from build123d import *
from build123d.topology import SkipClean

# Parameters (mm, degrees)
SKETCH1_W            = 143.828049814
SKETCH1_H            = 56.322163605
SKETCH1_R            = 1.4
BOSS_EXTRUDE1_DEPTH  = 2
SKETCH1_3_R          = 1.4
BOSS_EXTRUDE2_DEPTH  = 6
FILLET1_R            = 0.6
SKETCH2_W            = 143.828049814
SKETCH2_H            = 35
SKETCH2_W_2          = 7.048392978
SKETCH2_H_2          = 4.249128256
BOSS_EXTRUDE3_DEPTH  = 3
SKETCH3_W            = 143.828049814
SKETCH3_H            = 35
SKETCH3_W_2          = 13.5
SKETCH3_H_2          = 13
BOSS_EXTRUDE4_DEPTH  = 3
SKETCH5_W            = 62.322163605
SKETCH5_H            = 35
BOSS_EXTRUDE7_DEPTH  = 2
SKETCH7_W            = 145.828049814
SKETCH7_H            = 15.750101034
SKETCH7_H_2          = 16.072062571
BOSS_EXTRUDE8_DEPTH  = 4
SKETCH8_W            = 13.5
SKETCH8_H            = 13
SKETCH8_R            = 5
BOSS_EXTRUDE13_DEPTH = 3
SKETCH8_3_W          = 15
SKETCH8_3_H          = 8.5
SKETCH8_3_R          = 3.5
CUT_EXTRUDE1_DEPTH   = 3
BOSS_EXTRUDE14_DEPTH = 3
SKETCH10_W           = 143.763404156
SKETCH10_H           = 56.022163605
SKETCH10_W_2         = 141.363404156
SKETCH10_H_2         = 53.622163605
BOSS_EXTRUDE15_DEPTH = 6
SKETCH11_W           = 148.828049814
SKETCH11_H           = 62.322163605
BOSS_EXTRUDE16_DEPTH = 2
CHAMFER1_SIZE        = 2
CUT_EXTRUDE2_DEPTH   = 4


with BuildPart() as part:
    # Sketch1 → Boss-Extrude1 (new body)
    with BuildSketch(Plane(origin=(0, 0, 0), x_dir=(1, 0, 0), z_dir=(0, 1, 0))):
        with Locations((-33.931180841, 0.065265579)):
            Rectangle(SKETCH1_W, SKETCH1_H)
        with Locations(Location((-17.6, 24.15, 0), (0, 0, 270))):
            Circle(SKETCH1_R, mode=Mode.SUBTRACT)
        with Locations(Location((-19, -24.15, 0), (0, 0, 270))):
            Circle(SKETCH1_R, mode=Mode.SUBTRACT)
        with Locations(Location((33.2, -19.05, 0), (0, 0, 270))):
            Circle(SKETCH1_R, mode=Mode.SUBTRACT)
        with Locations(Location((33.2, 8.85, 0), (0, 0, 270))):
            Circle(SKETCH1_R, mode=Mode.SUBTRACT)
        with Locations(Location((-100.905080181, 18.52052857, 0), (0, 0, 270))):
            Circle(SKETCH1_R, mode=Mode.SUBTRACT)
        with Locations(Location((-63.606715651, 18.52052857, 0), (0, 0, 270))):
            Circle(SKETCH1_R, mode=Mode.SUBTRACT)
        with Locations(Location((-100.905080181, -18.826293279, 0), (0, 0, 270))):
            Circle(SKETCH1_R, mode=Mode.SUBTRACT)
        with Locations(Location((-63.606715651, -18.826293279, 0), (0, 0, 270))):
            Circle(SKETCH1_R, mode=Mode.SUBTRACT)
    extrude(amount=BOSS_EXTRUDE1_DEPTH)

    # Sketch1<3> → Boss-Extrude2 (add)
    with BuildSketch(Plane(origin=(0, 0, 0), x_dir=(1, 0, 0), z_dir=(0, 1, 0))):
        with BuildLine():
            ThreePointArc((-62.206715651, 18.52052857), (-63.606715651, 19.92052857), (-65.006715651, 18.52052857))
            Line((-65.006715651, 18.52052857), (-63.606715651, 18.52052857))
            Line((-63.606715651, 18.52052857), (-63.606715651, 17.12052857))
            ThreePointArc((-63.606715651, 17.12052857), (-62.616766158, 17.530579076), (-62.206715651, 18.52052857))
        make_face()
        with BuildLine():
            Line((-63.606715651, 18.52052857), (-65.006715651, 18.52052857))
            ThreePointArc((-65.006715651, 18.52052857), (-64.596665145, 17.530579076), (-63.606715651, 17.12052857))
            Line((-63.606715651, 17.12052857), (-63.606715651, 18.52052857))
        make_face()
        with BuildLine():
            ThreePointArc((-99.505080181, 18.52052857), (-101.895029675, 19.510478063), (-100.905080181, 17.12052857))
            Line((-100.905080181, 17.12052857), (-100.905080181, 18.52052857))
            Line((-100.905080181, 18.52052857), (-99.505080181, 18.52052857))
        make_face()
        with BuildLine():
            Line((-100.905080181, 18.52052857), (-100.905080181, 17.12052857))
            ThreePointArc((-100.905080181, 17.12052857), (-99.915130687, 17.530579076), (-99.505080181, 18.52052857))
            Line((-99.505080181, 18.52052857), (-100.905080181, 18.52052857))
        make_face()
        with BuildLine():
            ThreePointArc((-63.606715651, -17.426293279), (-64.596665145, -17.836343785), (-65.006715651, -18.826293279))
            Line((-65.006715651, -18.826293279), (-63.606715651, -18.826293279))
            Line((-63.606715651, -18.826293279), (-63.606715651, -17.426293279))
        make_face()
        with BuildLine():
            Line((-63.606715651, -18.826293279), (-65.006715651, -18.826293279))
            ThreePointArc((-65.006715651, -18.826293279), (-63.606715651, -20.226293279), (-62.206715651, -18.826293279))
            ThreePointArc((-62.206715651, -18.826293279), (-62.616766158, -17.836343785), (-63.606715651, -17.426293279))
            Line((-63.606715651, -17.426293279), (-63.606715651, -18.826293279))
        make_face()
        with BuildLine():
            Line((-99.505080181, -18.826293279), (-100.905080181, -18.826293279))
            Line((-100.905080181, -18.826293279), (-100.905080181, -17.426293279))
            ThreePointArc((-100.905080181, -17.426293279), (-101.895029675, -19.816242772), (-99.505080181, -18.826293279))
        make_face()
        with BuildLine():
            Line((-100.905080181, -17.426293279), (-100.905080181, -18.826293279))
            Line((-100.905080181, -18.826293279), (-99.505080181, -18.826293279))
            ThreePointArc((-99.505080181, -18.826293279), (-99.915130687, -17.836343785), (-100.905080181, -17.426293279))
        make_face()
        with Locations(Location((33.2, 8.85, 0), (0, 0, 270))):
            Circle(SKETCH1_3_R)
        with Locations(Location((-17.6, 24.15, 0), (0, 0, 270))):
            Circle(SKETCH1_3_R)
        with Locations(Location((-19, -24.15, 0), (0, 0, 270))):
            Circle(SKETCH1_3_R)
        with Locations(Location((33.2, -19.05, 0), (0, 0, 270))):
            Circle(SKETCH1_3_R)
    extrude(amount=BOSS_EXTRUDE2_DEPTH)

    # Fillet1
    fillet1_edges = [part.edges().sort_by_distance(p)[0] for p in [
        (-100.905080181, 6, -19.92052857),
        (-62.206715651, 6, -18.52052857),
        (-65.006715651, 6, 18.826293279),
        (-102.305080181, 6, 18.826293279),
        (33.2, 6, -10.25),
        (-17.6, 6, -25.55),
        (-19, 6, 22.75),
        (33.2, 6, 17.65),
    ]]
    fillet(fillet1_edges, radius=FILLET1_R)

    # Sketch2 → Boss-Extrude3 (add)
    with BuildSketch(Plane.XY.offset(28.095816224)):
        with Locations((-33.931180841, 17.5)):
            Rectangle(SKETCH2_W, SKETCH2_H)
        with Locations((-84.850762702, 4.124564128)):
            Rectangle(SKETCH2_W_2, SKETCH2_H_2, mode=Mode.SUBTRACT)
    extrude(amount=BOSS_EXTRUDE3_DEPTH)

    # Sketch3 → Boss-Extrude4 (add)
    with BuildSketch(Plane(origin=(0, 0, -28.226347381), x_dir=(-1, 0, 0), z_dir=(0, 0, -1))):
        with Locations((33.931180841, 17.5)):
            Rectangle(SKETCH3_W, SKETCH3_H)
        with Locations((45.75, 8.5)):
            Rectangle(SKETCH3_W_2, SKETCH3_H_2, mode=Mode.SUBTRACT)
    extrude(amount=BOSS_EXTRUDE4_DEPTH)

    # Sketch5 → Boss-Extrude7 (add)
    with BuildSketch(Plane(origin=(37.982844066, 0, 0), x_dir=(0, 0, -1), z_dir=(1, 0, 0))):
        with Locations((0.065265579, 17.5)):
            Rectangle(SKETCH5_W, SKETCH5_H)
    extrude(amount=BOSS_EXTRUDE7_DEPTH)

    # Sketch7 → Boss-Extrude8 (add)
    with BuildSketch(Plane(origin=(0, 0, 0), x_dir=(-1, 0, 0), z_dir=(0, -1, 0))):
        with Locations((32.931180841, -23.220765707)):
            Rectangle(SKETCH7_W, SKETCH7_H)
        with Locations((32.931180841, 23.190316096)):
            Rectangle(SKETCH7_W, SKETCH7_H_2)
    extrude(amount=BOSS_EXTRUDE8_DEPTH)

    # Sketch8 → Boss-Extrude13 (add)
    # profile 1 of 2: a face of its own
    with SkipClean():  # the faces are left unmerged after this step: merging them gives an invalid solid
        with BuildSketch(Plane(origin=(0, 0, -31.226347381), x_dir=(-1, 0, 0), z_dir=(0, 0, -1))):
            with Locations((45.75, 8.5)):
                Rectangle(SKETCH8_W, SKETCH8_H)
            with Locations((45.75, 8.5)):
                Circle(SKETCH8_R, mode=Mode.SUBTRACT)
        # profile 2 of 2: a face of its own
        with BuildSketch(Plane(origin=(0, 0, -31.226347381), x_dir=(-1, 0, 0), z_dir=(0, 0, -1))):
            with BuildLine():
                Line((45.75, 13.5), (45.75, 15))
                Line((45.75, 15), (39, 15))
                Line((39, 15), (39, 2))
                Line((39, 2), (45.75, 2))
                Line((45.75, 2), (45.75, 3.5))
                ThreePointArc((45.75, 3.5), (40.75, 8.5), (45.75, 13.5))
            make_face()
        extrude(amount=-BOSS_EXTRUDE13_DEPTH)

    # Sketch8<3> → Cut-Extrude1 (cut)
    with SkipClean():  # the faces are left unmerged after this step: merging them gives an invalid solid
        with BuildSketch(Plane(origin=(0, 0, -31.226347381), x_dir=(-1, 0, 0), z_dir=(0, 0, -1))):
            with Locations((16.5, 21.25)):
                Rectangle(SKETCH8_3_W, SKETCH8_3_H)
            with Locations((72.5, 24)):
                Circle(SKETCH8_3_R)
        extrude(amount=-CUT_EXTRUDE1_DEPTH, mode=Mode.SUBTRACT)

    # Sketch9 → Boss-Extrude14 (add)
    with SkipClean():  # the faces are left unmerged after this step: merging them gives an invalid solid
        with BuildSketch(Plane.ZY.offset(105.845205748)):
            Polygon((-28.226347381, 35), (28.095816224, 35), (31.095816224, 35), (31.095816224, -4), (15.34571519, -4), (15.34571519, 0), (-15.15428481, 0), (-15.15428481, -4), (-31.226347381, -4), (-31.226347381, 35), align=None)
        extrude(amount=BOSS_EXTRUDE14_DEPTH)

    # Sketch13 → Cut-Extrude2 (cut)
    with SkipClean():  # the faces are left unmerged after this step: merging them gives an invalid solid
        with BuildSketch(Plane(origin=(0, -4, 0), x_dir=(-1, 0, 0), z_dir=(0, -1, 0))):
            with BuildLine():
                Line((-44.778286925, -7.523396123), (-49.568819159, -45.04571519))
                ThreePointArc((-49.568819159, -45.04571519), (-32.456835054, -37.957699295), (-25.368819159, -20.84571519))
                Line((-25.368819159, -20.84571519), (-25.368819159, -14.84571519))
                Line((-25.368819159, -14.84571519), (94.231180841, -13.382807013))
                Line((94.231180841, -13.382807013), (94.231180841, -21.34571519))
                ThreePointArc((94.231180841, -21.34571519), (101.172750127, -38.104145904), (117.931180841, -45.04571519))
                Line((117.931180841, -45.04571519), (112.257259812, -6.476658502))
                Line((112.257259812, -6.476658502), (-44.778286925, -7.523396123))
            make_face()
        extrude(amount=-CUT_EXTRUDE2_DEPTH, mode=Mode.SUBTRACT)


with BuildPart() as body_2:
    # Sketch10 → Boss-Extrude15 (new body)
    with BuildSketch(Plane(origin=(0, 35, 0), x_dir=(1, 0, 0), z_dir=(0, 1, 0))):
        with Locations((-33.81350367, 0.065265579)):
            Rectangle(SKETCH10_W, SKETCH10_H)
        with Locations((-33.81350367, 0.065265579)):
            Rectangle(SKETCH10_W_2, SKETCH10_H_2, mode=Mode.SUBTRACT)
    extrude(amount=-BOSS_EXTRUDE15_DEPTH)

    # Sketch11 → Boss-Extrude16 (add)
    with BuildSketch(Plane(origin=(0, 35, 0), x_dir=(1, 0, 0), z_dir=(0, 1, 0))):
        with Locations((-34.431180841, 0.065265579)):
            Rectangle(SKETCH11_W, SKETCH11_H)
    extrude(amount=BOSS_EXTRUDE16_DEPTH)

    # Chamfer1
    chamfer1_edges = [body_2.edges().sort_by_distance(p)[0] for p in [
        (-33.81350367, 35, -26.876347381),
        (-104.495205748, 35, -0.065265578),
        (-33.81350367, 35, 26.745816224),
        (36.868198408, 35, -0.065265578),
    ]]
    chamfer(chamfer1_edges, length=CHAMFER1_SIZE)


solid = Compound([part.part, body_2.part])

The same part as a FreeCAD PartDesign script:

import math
import FreeCAD as App
import Part
import Sketcher

V = App.Vector
Q = App.Units.Quantity


def edges_at(feature, points):
    """Names of the edges that pass closest to the given points."""
    edges = feature.Shape.Edges
    near = lambda p: min(range(len(edges)), key=lambda i: edges[i].distToShape(Part.Vertex(*p))[0])
    return sorted({f"Edge{near(p) + 1}" for p in points})

doc = App.newDocument("Part")
body = doc.addObject("PartDesign::Body", "Body")

sketch1 = doc.addObject("Sketcher::SketchObject", "Sketch")
body.addObject(sketch1)
sketch1.AttachmentSupport = (doc.XZ_Plane, [""])
sketch1.MapMode = "FlatFace"
sketch1.addGeometry(Part.LineSegment(V(-105.8, -28.2, 0), V(-105.8, 28.1, 0)), False)
sketch1.addGeometry(Part.LineSegment(V(-105.8, 28.1, 0), V(38, 28.1, 0)), False)
sketch1.addGeometry(Part.LineSegment(V(38, 28.1, 0), V(38, -28.2, 0)), False)
sketch1.addGeometry(Part.LineSegment(V(38, -28.2, 0), V(-105.8, -28.2, 0)), False)
sketch1.addGeometry(Part.Circle(V(-100.9, 18.8, 0), V(0, 0, 1), 1.4), False)
sketch1.addGeometry(Part.Circle(V(-63.6, 18.8, 0), V(0, 0, 1), 1.4), False)
sketch1.addGeometry(Part.Circle(V(-19, 24.1, 0), V(0, 0, 1), 1.4), False)
sketch1.addGeometry(Part.Circle(V(33.2, 19.1, 0), V(0, 0, 1), 1.4), False)
sketch1.addGeometry(Part.Circle(V(-100.9, -18.5, 0), V(0, 0, 1), 1.4), False)
sketch1.addGeometry(Part.Circle(V(-63.6, -18.5, 0), V(0, 0, 1), 1.4), False)
sketch1.addGeometry(Part.Circle(V(33.2, -8.8, 0), V(0, 0, 1), 1.4), False)
sketch1.addGeometry(Part.Circle(V(-17.6, -24.1, 0), V(0, 0, 1), 1.4), False)
sketch1.addConstraint(Sketcher.Constraint("Coincident", 0, 2, 1, 1))
sketch1.addConstraint(Sketcher.Constraint("Coincident", 1, 2, 2, 1))
sketch1.addConstraint(Sketcher.Constraint("Coincident", 2, 2, 3, 1))
sketch1.addConstraint(Sketcher.Constraint("Coincident", 3, 2, 0, 1))
sketch1.addConstraint(Sketcher.Constraint("Vertical", 0))
sketch1.addConstraint(Sketcher.Constraint("Horizontal", 1))
sketch1.addConstraint(Sketcher.Constraint("Vertical", 2))
sketch1.addConstraint(Sketcher.Constraint("Horizontal", 3))
sketch1.addConstraint(Sketcher.Constraint("Equal", 4, 5))
sketch1.addConstraint(Sketcher.Constraint("Equal", 5, 6))
sketch1.addConstraint(Sketcher.Constraint("Equal", 6, 7))
sketch1.addConstraint(Sketcher.Constraint("Equal", 7, 8))
sketch1.addConstraint(Sketcher.Constraint("Equal", 8, 9))
sketch1.addConstraint(Sketcher.Constraint("Equal", 9, 10))
sketch1.addConstraint(Sketcher.Constraint("Equal", 10, 11))
sketch1.addConstraint(Sketcher.Constraint("Horizontal", 4, 3, 5, 3))
sketch1.addConstraint(Sketcher.Constraint("Horizontal", 8, 3, 9, 3))
sketch1.addConstraint(Sketcher.Constraint("Vertical", 4, 3, 8, 3))
sketch1.addConstraint(Sketcher.Constraint("Vertical", 5, 3, 9, 3))
sketch1.addConstraint(Sketcher.Constraint("Vertical", 7, 3, 10, 3))
sketch1.addConstraint(Sketcher.Constraint("Diameter", 4, Q("2.8 mm")))
sketch1.addConstraint(Sketcher.Constraint("DistanceX", 6, 3, -1, 1, Q("19 mm")))
sketch1.addConstraint(Sketcher.Constraint("DistanceY", 10, 3, 6, 3, Q("33 mm")))
sketch1.addConstraint(Sketcher.Constraint("DistanceX", -1, 1, 7, 3, Q("33.2 mm")))
sketch1.addConstraint(Sketcher.Constraint("DistanceX", 11, 3, -1, 1, Q("17.6 mm")))
sketch1.addConstraint(Sketcher.Constraint("DistanceY", 7, 3, 6, 3, Q("5.1 mm")))
sketch1.addConstraint(Sketcher.Constraint("DistanceY", 11, 3, 6, 3, Q("48.3 mm")))
sketch1.addConstraint(Sketcher.Constraint("DistanceY", -1, 1, 6, 3, Q("24.15 mm")))
sketch1.addConstraint(Sketcher.Constraint("DistanceX", 1, 1, 1, 2, Q("143.82805 mm")))
sketch1.addConstraint(Sketcher.Constraint("DistanceY", 0, 1, 0, 2, Q("56.322164 mm")))
sketch1.addConstraint(Sketcher.Constraint("DistanceX", 4, 3, -1, 1, Q("100.90508 mm")))
sketch1.addConstraint(Sketcher.Constraint("DistanceY", 8, 3, -1, 1, Q("18.520529 mm")))
sketch1.addConstraint(Sketcher.Constraint("DistanceY", 8, 3, 4, 3, Q("37.346822 mm")))
sketch1.addConstraint(Sketcher.Constraint("DistanceX", 0, 2, 5, 3, Q("42.23849 mm")))
sketch1.addConstraint(Sketcher.Constraint("DistanceY", 3, 2, 8, 3, Q("9.705819 mm")))
sketch1.addConstraint(Sketcher.Constraint("DistanceX", 5, 3, -1, 1, Q("63.606716 mm")))
pad1 = doc.addObject("PartDesign::Pad", "Pad")
body.addObject(pad1)
pad1.Profile = sketch1
pad1.Length = 2
pad1.Reversed = True

sketch2 = doc.addObject("Sketcher::SketchObject", "Sketch001")
body.addObject(sketch2)
sketch2.AttachmentSupport = (doc.XZ_Plane, [""])
sketch2.MapMode = "FlatFace"
sketch2.addGeometry(Part.ArcOfCircle(Part.Circle(V(-63.6, -18.5, 0), V(0, 0, 1), 1.4), math.radians(180), math.radians(360)), False)
sketch2.addGeometry(Part.ArcOfCircle(Part.Circle(V(-63.6, -18.5, 0), V(0, 0, 1), 1.4), math.radians(90), math.radians(180)), False)
sketch2.addGeometry(Part.ArcOfCircle(Part.Circle(V(-63.6, -18.5, 0), V(0, 0, 1), 1.4), math.radians(0), math.radians(90)), False)
sketch2.addGeometry(Part.ArcOfCircle(Part.Circle(V(-100.9, -18.5, 0), V(0, 0, 1), 1.4), math.radians(90), math.radians(360)), False)
sketch2.addGeometry(Part.ArcOfCircle(Part.Circle(V(-100.9, -18.5, 0), V(0, 0, 1), 1.4), math.radians(0), math.radians(90)), False)
sketch2.addGeometry(Part.ArcOfCircle(Part.Circle(V(-63.6, 18.8, 0), V(0, 0, 1), 1.4), math.radians(180), math.radians(270)), False)
sketch2.addGeometry(Part.ArcOfCircle(Part.Circle(V(-63.6, 18.8, 0), V(0, 0, 1), 1.4), math.radians(0), math.radians(180)), False)
sketch2.addGeometry(Part.ArcOfCircle(Part.Circle(V(-63.6, 18.8, 0), V(0, 0, 1), 1.4), math.radians(-90), math.radians(0)), False)
sketch2.addGeometry(Part.ArcOfCircle(Part.Circle(V(-100.9, 18.8, 0), V(0, 0, 1), 1.4), math.radians(0), math.radians(270)), False)
sketch2.addGeometry(Part.ArcOfCircle(Part.Circle(V(-100.9, 18.8, 0), V(0, 0, 1), 1.4), math.radians(-90), math.radians(0)), False)
sketch2.addGeometry(Part.Circle(V(33.2, -8.8, 0), V(0, 0, 1), 1.4), False)
sketch2.addGeometry(Part.Circle(V(-17.6, -24.1, 0), V(0, 0, 1), 1.4), False)
sketch2.addGeometry(Part.Circle(V(-19, 24.1, 0), V(0, 0, 1), 1.4), False)
sketch2.addGeometry(Part.Circle(V(33.2, 19.1, 0), V(0, 0, 1), 1.4), False)
sketch2.addConstraint(Sketcher.Constraint("Tangent", 0, 1, 1, 2))
sketch2.addConstraint(Sketcher.Constraint("Tangent", 1, 1, 2, 2))
sketch2.addConstraint(Sketcher.Constraint("Tangent", 2, 1, 0, 2))
sketch2.addConstraint(Sketcher.Constraint("Tangent", 3, 1, 4, 2))
sketch2.addConstraint(Sketcher.Constraint("Coincident", 4, 1, 3, 2))
sketch2.addConstraint(Sketcher.Constraint("Tangent", 5, 1, 6, 2))
sketch2.addConstraint(Sketcher.Constraint("Tangent", 6, 1, 7, 2))
sketch2.addConstraint(Sketcher.Constraint("Tangent", 7, 1, 5, 2))
sketch2.addConstraint(Sketcher.Constraint("Tangent", 8, 1, 9, 2))
sketch2.addConstraint(Sketcher.Constraint("Coincident", 9, 1, 8, 2))
sketch2.addConstraint(Sketcher.Constraint("Equal", 2, 3))
sketch2.addConstraint(Sketcher.Constraint("Equal", 4, 5))
sketch2.addConstraint(Sketcher.Constraint("Equal", 7, 8))
sketch2.addConstraint(Sketcher.Constraint("Equal", 9, 10))
sketch2.addConstraint(Sketcher.Constraint("Equal", 10, 11))
sketch2.addConstraint(Sketcher.Constraint("Equal", 11, 12))
sketch2.addConstraint(Sketcher.Constraint("Equal", 12, 13))
sketch2.addConstraint(Sketcher.Constraint("Horizontal", 2, 3, 3, 3))
sketch2.addConstraint(Sketcher.Constraint("Horizontal", 7, 3, 8, 3))
sketch2.addConstraint(Sketcher.Constraint("Horizontal", 4, 3, 0, 1))
sketch2.addConstraint(Sketcher.Constraint("Horizontal", 0, 1, 2, 1))
sketch2.addConstraint(Sketcher.Constraint("Horizontal", 2, 1, 4, 1))
sketch2.addConstraint(Sketcher.Constraint("Horizontal", 9, 3, 5, 1))
sketch2.addConstraint(Sketcher.Constraint("Horizontal", 5, 1, 6, 1))
sketch2.addConstraint(Sketcher.Constraint("Horizontal", 6, 1, 8, 1))
sketch2.addConstraint(Sketcher.Constraint("Vertical", 2, 3, 5, 3))
sketch2.addConstraint(Sketcher.Constraint("Vertical", 4, 3, 8, 3))
sketch2.addConstraint(Sketcher.Constraint("Vertical", 10, 3, 13, 3))
sketch2.addConstraint(Sketcher.Constraint("Vertical", 7, 3, 1, 1))
sketch2.addConstraint(Sketcher.Constraint("Vertical", 9, 3, 3, 1))
sketch2.addConstraint(Sketcher.Constraint("Vertical", 1, 1, 7, 1))
sketch2.addConstraint(Sketcher.Constraint("Vertical", 3, 1, 9, 1))
sketch2.addConstraint(Sketcher.Constraint("Diameter", 10, Q("2.8 mm")))
sketch2.addConstraint(Sketcher.Constraint("DistanceX", 12, 3, -1, 1, Q("19 mm")))
sketch2.addConstraint(Sketcher.Constraint("DistanceX", -1, 1, 10, 3, Q("33.2 mm")))
sketch2.addConstraint(Sketcher.Constraint("DistanceX", 11, 3, -1, 1, Q("17.6 mm")))
sketch2.addConstraint(Sketcher.Constraint("DistanceY", 11, 3, 10, 3, Q("15.3 mm")))
sketch2.addConstraint(Sketcher.Constraint("DistanceY", 11, 3, 12, 3, Q("48.3 mm")))
sketch2.addConstraint(Sketcher.Constraint("DistanceY", 10, 3, 13, 3, Q("27.9 mm")))
sketch2.addConstraint(Sketcher.Constraint("DistanceY", 10, 3, -1, 1, Q("8.85 mm")))
sketch2.addConstraint(Sketcher.Constraint("DistanceY", 0, 3, -1, 1, Q("18.520529 mm")))
sketch2.addConstraint(Sketcher.Constraint("DistanceX", 3, 3, -1, 1, Q("100.90508 mm")))
sketch2.addConstraint(Sketcher.Constraint("DistanceY", 1, 3, 5, 3, Q("37.346822 mm")))
sketch2.addConstraint(Sketcher.Constraint("DistanceX", 0, 3, -1, 1, Q("63.606716 mm")))
pad2 = doc.addObject("PartDesign::Pad", "Pad001")
body.addObject(pad2)
pad2.Profile = sketch2
pad2.Length = 6
pad2.Reversed = True
doc.recompute()

fillet = doc.addObject("PartDesign::Fillet", "Fillet")
body.addObject(fillet)
fillet.Base = (pad2, edges_at(pad2, [
    (-101.895, 6, -19.51),
    (-63.607, 6, -19.921),
    (-64.597, 6, 17.836),
    (-101.895, 6, 19.816),
    (33.2, 6, -10.25),
    (-17.6, 6, -25.55),
    (-19, 6, 22.75),
    (33.2, 6, 17.65),
]))
fillet.Radius = 0.6

sketch3 = doc.addObject("Sketcher::SketchObject", "Sketch002")
body.addObject(sketch3)
sketch3.AttachmentSupport = (doc.XY_Plane, [""])
sketch3.MapMode = "FlatFace"
sketch3.AttachmentOffset = App.Placement(V(0, 0, 28.095816), App.Rotation())
sketch3.addGeometry(Part.LineSegment(V(-105.8, 35, 0), V(-105.8, 0, 0)), False)
sketch3.addGeometry(Part.LineSegment(V(-105.8, 0, 0), V(38, 0, 0)), False)
sketch3.addGeometry(Part.LineSegment(V(38, 0, 0), V(38, 35, 0)), False)
sketch3.addGeometry(Part.LineSegment(V(38, 35, 0), V(-105.8, 35, 0)), False)
sketch3.addGeometry(Part.LineSegment(V(-81.3, 2, 0), V(-88.4, 2, 0)), False)
sketch3.addGeometry(Part.LineSegment(V(-88.4, 2, 0), V(-88.4, 6.2, 0)), False)
sketch3.addGeometry(Part.LineSegment(V(-88.4, 6.2, 0), V(-81.3, 6.2, 0)), False)
sketch3.addGeometry(Part.LineSegment(V(-81.3, 6.2, 0), V(-81.3, 2, 0)), False)
sketch3.addConstraint(Sketcher.Constraint("Coincident", 0, 2, 1, 1))
sketch3.addConstraint(Sketcher.Constraint("Coincident", 1, 2, 2, 1))
sketch3.addConstraint(Sketcher.Constraint("Coincident", 2, 2, 3, 1))
sketch3.addConstraint(Sketcher.Constraint("Coincident", 3, 2, 0, 1))
sketch3.addConstraint(Sketcher.Constraint("Coincident", 4, 2, 5, 1))
sketch3.addConstraint(Sketcher.Constraint("Coincident", 5, 2, 6, 1))
sketch3.addConstraint(Sketcher.Constraint("Coincident", 6, 2, 7, 1))
sketch3.addConstraint(Sketcher.Constraint("Coincident", 7, 2, 4, 1))
sketch3.addConstraint(Sketcher.Constraint("Vertical", 0))
sketch3.addConstraint(Sketcher.Constraint("Horizontal", 1))
sketch3.addConstraint(Sketcher.Constraint("Vertical", 2))
sketch3.addConstraint(Sketcher.Constraint("Horizontal", 3))
sketch3.addConstraint(Sketcher.Constraint("Horizontal", 4))
sketch3.addConstraint(Sketcher.Constraint("Vertical", 5))
sketch3.addConstraint(Sketcher.Constraint("Horizontal", 6))
sketch3.addConstraint(Sketcher.Constraint("Vertical", 7))
sketch3.addConstraint(Sketcher.Constraint("PointOnObject", 0, 2, -1))
sketch3.addConstraint(Sketcher.Constraint("DistanceY", 0, 2, 0, 1, Q("35 mm")))
sketch3.addConstraint(Sketcher.Constraint("DistanceY", -1, 1, 4, 2, Q("2 mm")))
sketch3.addConstraint(Sketcher.Constraint("DistanceX", 1, 1, 1, 2, Q("143.82805 mm")))
sketch3.addConstraint(Sketcher.Constraint("DistanceY", 5, 1, 5, 2, Q("4.249128 mm")))
sketch3.addConstraint(Sketcher.Constraint("DistanceX", 4, 2, 4, 1, Q("7.048393 mm")))
sketch3.addConstraint(Sketcher.Constraint("DistanceX", 4, 2, -1, 1, Q("88.374959 mm")))
sketch3.addConstraint(Sketcher.Constraint("DistanceX", 0, 2, 6, 2, Q("24.51864 mm")))
pad3 = doc.addObject("PartDesign::Pad", "Pad002")
body.addObject(pad3)
pad3.Profile = sketch3
pad3.Length = 3

sketch4 = doc.addObject("Sketcher::SketchObject", "Sketch003")
body.addObject(sketch4)
sketch4.AttachmentSupport = (doc.XY_Plane, [""])
sketch4.MapMode = "FlatFace"
sketch4.AttachmentOffset = App.Placement(V(0, 0, -28.226347), App.Rotation())
sketch4.addGeometry(Part.LineSegment(V(38, 35, 0), V(38, 0, 0)), False)
sketch4.addGeometry(Part.LineSegment(V(38, 0, 0), V(-106, 0, 0)), False)
sketch4.addGeometry(Part.LineSegment(V(-106, 0, 0), V(-106, 35, 0)), False)
sketch4.addGeometry(Part.LineSegment(V(-106, 35, 0), V(38, 35, 0)), False)
sketch4.addGeometry(Part.LineSegment(V(-52, 2, 0), V(-39, 2, 0)), False)
sketch4.addGeometry(Part.LineSegment(V(-39, 2, 0), V(-39, 15, 0)), False)
sketch4.addGeometry(Part.LineSegment(V(-39, 15, 0), V(-52, 15, 0)), False)
sketch4.addGeometry(Part.LineSegment(V(-52, 15, 0), V(-52, 2, 0)), False)
sketch4.addConstraint(Sketcher.Constraint("Coincident", 0, 2, 1, 1))
sketch4.addConstraint(Sketcher.Constraint("Coincident", 1, 2, 2, 1))
sketch4.addConstraint(Sketcher.Constraint("Coincident", 2, 2, 3, 1))
sketch4.addConstraint(Sketcher.Constraint("Coincident", 3, 2, 0, 1))
sketch4.addConstraint(Sketcher.Constraint("Coincident", 4, 2, 5, 1))
sketch4.addConstraint(Sketcher.Constraint("Coincident", 5, 2, 6, 1))
sketch4.addConstraint(Sketcher.Constraint("Coincident", 6, 2, 7, 1))
sketch4.addConstraint(Sketcher.Constraint("Coincident", 7, 2, 4, 1))
sketch4.addConstraint(Sketcher.Constraint("Vertical", 0))
sketch4.addConstraint(Sketcher.Constraint("Horizontal", 1))
sketch4.addConstraint(Sketcher.Constraint("Vertical", 2))
sketch4.addConstraint(Sketcher.Constraint("Horizontal", 3))
sketch4.addConstraint(Sketcher.Constraint("Horizontal", 4))
sketch4.addConstraint(Sketcher.Constraint("Vertical", 5))
sketch4.addConstraint(Sketcher.Constraint("Horizontal", 6))
sketch4.addConstraint(Sketcher.Constraint("Vertical", 7))
sketch4.addConstraint(Sketcher.Constraint("PointOnObject", 0, 2, -1))
sketch4.addConstraint(Sketcher.Constraint("DistanceY", 0, 2, 0, 1, Q("35 mm")))
sketch4.addConstraint(Sketcher.Constraint("DistanceY", 5, 1, 5, 2, Q("13 mm")))
sketch4.addConstraint(Sketcher.Constraint("DistanceX", 4, 1, 4, 2, Q("13.5 mm")))
sketch4.addConstraint(Sketcher.Constraint("DistanceX", 4, 2, -1, 1, Q("39 mm")))
sketch4.addConstraint(Sketcher.Constraint("DistanceY", -1, 1, 4, 2, Q("2 mm")))
sketch4.addConstraint(Sketcher.Constraint("DistanceX", 1, 2, 1, 1, Q("143.82805 mm")))
sketch4.addConstraint(Sketcher.Constraint("DistanceX", -1, 1, 0, 2, Q("37.982844 mm")))
pad4 = doc.addObject("PartDesign::Pad", "Pad003")
body.addObject(pad4)
pad4.Profile = sketch4
pad4.Length = 3
pad4.Reversed = True

sketch5 = doc.addObject("Sketcher::SketchObject", "Sketch004")
body.addObject(sketch5)
sketch5.AttachmentSupport = (doc.YZ_Plane, [""])
sketch5.MapMode = "FlatFace"
sketch5.AttachmentOffset = App.Placement(V(0, 0, 37.982844), App.Rotation())
sketch5.addGeometry(Part.LineSegment(V(35, 31, 0), V(0, 31, 0)), False)
sketch5.addGeometry(Part.LineSegment(V(0, 31, 0), V(0, -31, 0)), False)
sketch5.addGeometry(Part.LineSegment(V(0, -31, 0), V(35, -31, 0)), False)
sketch5.addGeometry(Part.LineSegment(V(35, -31, 0), V(35, 31, 0)), False)
sketch5.addConstraint(Sketcher.Constraint("Coincident", 0, 2, 1, 1))
sketch5.addConstraint(Sketcher.Constraint("Coincident", 1, 2, 2, 1))
sketch5.addConstraint(Sketcher.Constraint("Coincident", 2, 2, 3, 1))
sketch5.addConstraint(Sketcher.Constraint("Coincident", 3, 2, 0, 1))
sketch5.addConstraint(Sketcher.Constraint("Horizontal", 0))
sketch5.addConstraint(Sketcher.Constraint("Vertical", 1))
sketch5.addConstraint(Sketcher.Constraint("Horizontal", 2))
sketch5.addConstraint(Sketcher.Constraint("Vertical", 3))
sketch5.addConstraint(Sketcher.Constraint("PointOnObject", 0, 2, -2))
sketch5.addConstraint(Sketcher.Constraint("DistanceX", 0, 2, 0, 1, Q("35 mm")))
sketch5.addConstraint(Sketcher.Constraint("DistanceY", 1, 2, 1, 1, Q("62.322164 mm")))
sketch5.addConstraint(Sketcher.Constraint("DistanceY", -1, 1, 0, 2, Q("31.095816 mm")))
pad5 = doc.addObject("PartDesign::Pad", "Pad004")
body.addObject(pad5)
pad5.Profile = sketch5
pad5.Length = 2

sketch6 = doc.addObject("Sketcher::SketchObject", "Sketch005")
body.addObject(sketch6)
sketch6.AttachmentSupport = (doc.XZ_Plane, [""])
sketch6.MapMode = "FlatFace"
sketch6.addGeometry(Part.LineSegment(V(40, 15, 0), V(40, 31, 0)), False)
sketch6.addGeometry(Part.LineSegment(V(40, 31, 0), V(-106, 31, 0)), False)
sketch6.addGeometry(Part.LineSegment(V(-106, 31, 0), V(-106, 15, 0)), False)
sketch6.addGeometry(Part.LineSegment(V(-106, 15, 0), V(40, 15, 0)), False)
sketch6.addGeometry(Part.LineSegment(V(40, -31, 0), V(40, -15, 0)), False)
sketch6.addGeometry(Part.LineSegment(V(40, -15, 0), V(-106, -15, 0)), False)
sketch6.addGeometry(Part.LineSegment(V(-106, -15, 0), V(-106, -31, 0)), False)
sketch6.addGeometry(Part.LineSegment(V(-106, -31, 0), V(40, -31, 0)), False)
sketch6.addConstraint(Sketcher.Constraint("Coincident", 0, 2, 1, 1))
sketch6.addConstraint(Sketcher.Constraint("Coincident", 1, 2, 2, 1))
sketch6.addConstraint(Sketcher.Constraint("Coincident", 2, 2, 3, 1))
sketch6.addConstraint(Sketcher.Constraint("Coincident", 3, 2, 0, 1))
sketch6.addConstraint(Sketcher.Constraint("Coincident", 4, 2, 5, 1))
sketch6.addConstraint(Sketcher.Constraint("Coincident", 5, 2, 6, 1))
sketch6.addConstraint(Sketcher.Constraint("Coincident", 6, 2, 7, 1))
sketch6.addConstraint(Sketcher.Constraint("Coincident", 7, 2, 4, 1))
sketch6.addConstraint(Sketcher.Constraint("Vertical", 0))
sketch6.addConstraint(Sketcher.Constraint("Horizontal", 1))
sketch6.addConstraint(Sketcher.Constraint("Vertical", 2))
sketch6.addConstraint(Sketcher.Constraint("Horizontal", 3))
sketch6.addConstraint(Sketcher.Constraint("Vertical", 4))
sketch6.addConstraint(Sketcher.Constraint("Horizontal", 5))
sketch6.addConstraint(Sketcher.Constraint("Vertical", 6))
sketch6.addConstraint(Sketcher.Constraint("Horizontal", 7))
sketch6.addConstraint(Sketcher.Constraint("Vertical", 3, 2, 4, 2))
sketch6.addConstraint(Sketcher.Constraint("Vertical", 2, 2, 5, 2))
sketch6.addConstraint(Sketcher.Constraint("DistanceY", 4, 2, 3, 2, Q("30.5 mm")))
sketch6.addConstraint(Sketcher.Constraint("DistanceY", 0, 1, 0, 2, Q("15.750101 mm")))
sketch6.addConstraint(Sketcher.Constraint("DistanceX", 1, 2, 1, 1, Q("145.82805 mm")))
sketch6.addConstraint(Sketcher.Constraint("DistanceY", 4, 1, 4, 2, Q("16.072063 mm")))
sketch6.addConstraint(Sketcher.Constraint("DistanceX", -1, 1, 0, 2, Q("39.982844 mm")))
sketch6.addConstraint(Sketcher.Constraint("DistanceY", -1, 1, 0, 2, Q("31.095816 mm")))
pad6 = doc.addObject("PartDesign::Pad", "Pad005")
body.addObject(pad6)
pad6.Profile = sketch6
pad6.Length = 4

sketch7 = doc.addObject("Sketcher::SketchObject", "Sketch006")
body.addObject(sketch7)
sketch7.AttachmentSupport = (doc.XY_Plane, [""])
sketch7.MapMode = "FlatFace"
sketch7.AttachmentOffset = App.Placement(V(0, 0, -31.226347), App.Rotation())
sketch7.addGeometry(Part.LineSegment(V(-39, 15, 0), V(-39, 2, 0)), False)
sketch7.addGeometry(Part.LineSegment(V(-39, 2, 0), V(-52, 2, 0)), False)
sketch7.addGeometry(Part.LineSegment(V(-52, 2, 0), V(-52, 15, 0)), False)
sketch7.addGeometry(Part.LineSegment(V(-52, 15, 0), V(-39, 15, 0)), False)
sketch7.addGeometry(Part.Circle(V(-46, 8, 0), V(0, 0, 1), 5), False)
sketch7.addConstraint(Sketcher.Constraint("Coincident", 0, 2, 1, 1))
sketch7.addConstraint(Sketcher.Constraint("Coincident", 1, 2, 2, 1))
sketch7.addConstraint(Sketcher.Constraint("Coincident", 2, 2, 3, 1))
sketch7.addConstraint(Sketcher.Constraint("Coincident", 3, 2, 0, 1))
sketch7.addConstraint(Sketcher.Constraint("Vertical", 0))
sketch7.addConstraint(Sketcher.Constraint("Horizontal", 1))
sketch7.addConstraint(Sketcher.Constraint("Vertical", 2))
sketch7.addConstraint(Sketcher.Constraint("Horizontal", 3))
sketch7.addConstraint(Sketcher.Constraint("Diameter", 4, Q("10 mm")))
sketch7.addConstraint(Sketcher.Constraint("DistanceY", 0, 2, 0, 1, Q("13 mm")))
sketch7.addConstraint(Sketcher.Constraint("DistanceX", 1, 2, 1, 1, Q("13.5 mm")))
sketch7.addConstraint(Sketcher.Constraint("DistanceX", 0, 2, -1, 1, Q("39 mm")))
sketch7.addConstraint(Sketcher.Constraint("DistanceY", -1, 1, 0, 2, Q("2 mm")))
sketch7.addConstraint(Sketcher.Constraint("DistanceY", -1, 1, 4, 3, Q("8.5 mm")))
sketch7.addConstraint(Sketcher.Constraint("DistanceX", 4, 3, -1, 1, Q("45.75 mm")))
pad7 = doc.addObject("PartDesign::Pad", "Pad006")
body.addObject(pad7)
pad7.Profile = sketch7
pad7.Length = 3

sketch8 = doc.addObject("Sketcher::SketchObject", "Sketch007")
body.addObject(sketch8)
sketch8.AttachmentSupport = (doc.XY_Plane, [""])
sketch8.MapMode = "FlatFace"
sketch8.AttachmentOffset = App.Placement(V(0, 0, -31.226347), App.Rotation())
sketch8.addGeometry(Part.LineSegment(V(-9, 25.5, 0), V(-9, 17, 0)), False)
sketch8.addGeometry(Part.LineSegment(V(-9, 17, 0), V(-24, 17, 0)), False)
sketch8.addGeometry(Part.LineSegment(V(-24, 17, 0), V(-24, 25.5, 0)), False)
sketch8.addGeometry(Part.LineSegment(V(-24, 25.5, 0), V(-9, 25.5, 0)), False)
sketch8.addGeometry(Part.Circle(V(-72.5, 24, 0), V(0, 0, 1), 3.5), False)
sketch8.addConstraint(Sketcher.Constraint("Coincident", 0, 2, 1, 1))
sketch8.addConstraint(Sketcher.Constraint("Coincident", 1, 2, 2, 1))
sketch8.addConstraint(Sketcher.Constraint("Coincident", 2, 2, 3, 1))
sketch8.addConstraint(Sketcher.Constraint("Coincident", 3, 2, 0, 1))
sketch8.addConstraint(Sketcher.Constraint("Vertical", 0))
sketch8.addConstraint(Sketcher.Constraint("Horizontal", 1))
sketch8.addConstraint(Sketcher.Constraint("Vertical", 2))
sketch8.addConstraint(Sketcher.Constraint("Horizontal", 3))
sketch8.addConstraint(Sketcher.Constraint("Diameter", 4, Q("7 mm")))
sketch8.addConstraint(Sketcher.Constraint("DistanceX", 1, 2, 1, 1, Q("15 mm")))
sketch8.addConstraint(Sketcher.Constraint("DistanceY", 0, 2, 0, 1, Q("8.5 mm")))
sketch8.addConstraint(Sketcher.Constraint("DistanceY", -1, 1, 4, 3, Q("24 mm")))
sketch8.addConstraint(Sketcher.Constraint("DistanceX", 0, 2, -1, 1, Q("9 mm")))
sketch8.addConstraint(Sketcher.Constraint("DistanceY", -1, 1, 0, 2, Q("17 mm")))
sketch8.addConstraint(Sketcher.Constraint("DistanceX", 4, 3, -1, 1, Q("72.5 mm")))
pocket1 = doc.addObject("PartDesign::Pocket", "Pocket")
body.addObject(pocket1)
pocket1.Profile = sketch8
pocket1.Length = 3
pocket1.Reversed = True

sketch9 = doc.addObject("Sketcher::SketchObject", "Sketch008")
body.addObject(sketch9)
sketch9.AttachmentSupport = (doc.YZ_Plane, [""])
sketch9.MapMode = "FlatFace"
sketch9.AttachmentOffset = App.Placement(V(0, 0, -105.845206), App.Rotation())
sketch9.addGeometry(Part.LineSegment(V(35, 31.1, 0), V(35, -31.2, 0)), False)
sketch9.addGeometry(Part.LineSegment(V(35, -31.2, 0), V(-4, -31.2, 0)), False)
sketch9.addGeometry(Part.LineSegment(V(-4, -31.2, 0), V(-4, -15.2, 0)), False)
sketch9.addGeometry(Part.LineSegment(V(-4, -15.2, 0), V(0, -15.2, 0)), False)
sketch9.addGeometry(Part.LineSegment(V(0, -15.2, 0), V(0, 15.3, 0)), False)
sketch9.addGeometry(Part.LineSegment(V(0, 15.3, 0), V(-4, 15.3, 0)), False)
sketch9.addGeometry(Part.LineSegment(V(-4, 15.3, 0), V(-4, 31.1, 0)), False)
sketch9.addGeometry(Part.LineSegment(V(-4, 31.1, 0), V(35, 31.1, 0)), False)
sketch9.addConstraint(Sketcher.Constraint("Coincident", 0, 2, 1, 1))
sketch9.addConstraint(Sketcher.Constraint("Coincident", 1, 2, 2, 1))
sketch9.addConstraint(Sketcher.Constraint("Coincident", 2, 2, 3, 1))
sketch9.addConstraint(Sketcher.Constraint("Coincident", 3, 2, 4, 1))
sketch9.addConstraint(Sketcher.Constraint("Coincident", 4, 2, 5, 1))
sketch9.addConstraint(Sketcher.Constraint("Coincident", 5, 2, 6, 1))
sketch9.addConstraint(Sketcher.Constraint("Coincident", 6, 2, 7, 1))
sketch9.addConstraint(Sketcher.Constraint("Coincident", 7, 2, 0, 1))
sketch9.addConstraint(Sketcher.Constraint("Vertical", 0))
sketch9.addConstraint(Sketcher.Constraint("Horizontal", 1))
sketch9.addConstraint(Sketcher.Constraint("Vertical", 2))
sketch9.addConstraint(Sketcher.Constraint("Horizontal", 3))
sketch9.addConstraint(Sketcher.Constraint("Vertical", 4))
sketch9.addConstraint(Sketcher.Constraint("Horizontal", 5))
sketch9.addConstraint(Sketcher.Constraint("Vertical", 6))
sketch9.addConstraint(Sketcher.Constraint("Horizontal", 7))
sketch9.addConstraint(Sketcher.Constraint("PointOnObject", 3, 2, -2))
sketch9.addConstraint(Sketcher.Constraint("Vertical", 2, 2, 5, 2))
sketch9.addConstraint(Sketcher.Constraint("DistanceX", 1, 2, 1, 1, Q("39 mm")))
sketch9.addConstraint(Sketcher.Constraint("DistanceX", 3, 1, 3, 2, Q("4 mm")))
sketch9.addConstraint(Sketcher.Constraint("DistanceY", 4, 1, 4, 2, Q("30.5 mm")))
sketch9.addConstraint(Sketcher.Constraint("DistanceY", 6, 1, 6, 2, Q("15.750101 mm")))
sketch9.addConstraint(Sketcher.Constraint("DistanceY", 0, 2, 0, 1, Q("62.322164 mm")))
sketch9.addConstraint(Sketcher.Constraint("DistanceY", 0, 2, -1, 1, Q("31.226347 mm")))
pad8 = doc.addObject("PartDesign::Pad", "Pad007")
body.addObject(pad8)
pad8.Profile = sketch9
pad8.Length = 3
pad8.Reversed = True

sketch10 = doc.addObject("Sketcher::SketchObject", "Sketch009")
body.addObject(sketch10)
sketch10.AttachmentSupport = (doc.XZ_Plane, [""])
sketch10.MapMode = "FlatFace"
sketch10.AttachmentOffset = App.Placement(V(0, 0, 4), App.Rotation())
sketch10.addGeometry(Part.LineSegment(V(45, 8, 0), V(50, 45, 0)), False)
sketch10.addGeometry(Part.ArcOfCircle(Part.Circle(V(50, 21, 0), V(0, 0, 1), 24), math.radians(90), math.radians(180)), False)
sketch10.addGeometry(Part.LineSegment(V(25, 21, 0), V(25, 15, 0)), False)
sketch10.addGeometry(Part.LineSegment(V(25, 15, 0), V(-94, 13, 0)), False)
sketch10.addGeometry(Part.LineSegment(V(-94, 13, 0), V(-94, 21, 0)), False)
sketch10.addGeometry(Part.ArcOfCircle(Part.Circle(V(-118, 21, 0), V(0, 0, 1), 24), math.radians(0), math.radians(90)), False)
sketch10.addGeometry(Part.LineSegment(V(-118, 45, 0), V(-112, 6, 0)), False)
sketch10.addGeometry(Part.LineSegment(V(-112, 6, 0), V(45, 8, 0)), False)
sketch10.addConstraint(Sketcher.Constraint("Coincident", 0, 2, 1, 1))
sketch10.addConstraint(Sketcher.Constraint("Tangent", 1, 2, 2, 1))
sketch10.addConstraint(Sketcher.Constraint("Coincident", 2, 2, 3, 1))
sketch10.addConstraint(Sketcher.Constraint("Coincident", 3, 2, 4, 1))
sketch10.addConstraint(Sketcher.Constraint("Tangent", 4, 2, 5, 1))
sketch10.addConstraint(Sketcher.Constraint("Coincident", 5, 2, 6, 1))
sketch10.addConstraint(Sketcher.Constraint("Coincident", 6, 2, 7, 1))
sketch10.addConstraint(Sketcher.Constraint("Coincident", 7, 2, 0, 1))
sketch10.addConstraint(Sketcher.Constraint("Vertical", 2))
sketch10.addConstraint(Sketcher.Constraint("Vertical", 4))
sketch10.addConstraint(Sketcher.Constraint("Horizontal", 0, 2, 5, 2))
sketch10.addConstraint(Sketcher.Constraint("Vertical", 1, 3, 0, 2))
sketch10.addConstraint(Sketcher.Constraint("Radius", 1, Q("24.2 mm")))
sketch10.addConstraint(Sketcher.Constraint("Radius", 5, Q("23.7 mm")))
sketch10.addConstraint(Sketcher.Constraint("DistanceY", 2, 2, 2, 1, Q("6 mm")))
sketch10.addConstraint(Sketcher.Constraint("DistanceX", 5, 3, 1, 3, Q("167.5 mm")))
sketch10.addConstraint(Sketcher.Constraint("DistanceX", 5, 2, 4, 2, Q("23.7 mm")))
sketch10.addConstraint(Sketcher.Constraint("DistanceY", 4, 1, 4, 2, Q("7.962908 mm")))
sketch10.addConstraint(Sketcher.Constraint("Distance", 0, Q("37.82689 mm")))
sketch10.addConstraint(Sketcher.Constraint("Distance", 6, Q("38.98417 mm")))
sketch10.addConstraint(Sketcher.Constraint("DistanceX", -1, 1, 1, 3, Q("49.568819 mm")))
sketch10.addConstraint(Sketcher.Constraint("DistanceX", 6, 2, -1, 1, Q("112.25726 mm")))
sketch10.addConstraint(Sketcher.Constraint("DistanceY", -1, 1, 6, 2, Q("6.476659 mm")))
sketch10.addConstraint(Sketcher.Constraint("DistanceY", 7, 2, 1, 3, Q("13.322319 mm")))
pocket2 = doc.addObject("PartDesign::Pocket", "Pocket001")
body.addObject(pocket2)
pocket2.Profile = sketch10
pocket2.Length = 4
body2 = doc.addObject("PartDesign::Body", "Body001")

sketch11 = doc.addObject("Sketcher::SketchObject", "Sketch010")
body2.addObject(sketch11)
sketch11.AttachmentSupport = (doc.getObject("XZ_Plane001"), [""])
sketch11.MapMode = "FlatFace"
sketch11.AttachmentOffset = App.Placement(V(0, 0, -35), App.Rotation())
sketch11.addGeometry(Part.LineSegment(V(-106, -28, 0), V(-106, 28, 0)), False)
sketch11.addGeometry(Part.LineSegment(V(-106, 28, 0), V(38, 28, 0)), False)
sketch11.addGeometry(Part.LineSegment(V(38, 28, 0), V(38, -28, 0)), False)
sketch11.addGeometry(Part.LineSegment(V(38, -28, 0), V(-106, -28, 0)), False)
sketch11.addGeometry(Part.LineSegment(V(37, 27, 0), V(-104, 27, 0)), False)
sketch11.addGeometry(Part.LineSegment(V(-104, 27, 0), V(-104, -27, 0)), False)
sketch11.addGeometry(Part.LineSegment(V(-104, -27, 0), V(37, -27, 0)), False)
sketch11.addGeometry(Part.LineSegment(V(37, -27, 0), V(37, 27, 0)), False)
sketch11.addConstraint(Sketcher.Constraint("Coincident", 0, 2, 1, 1))
sketch11.addConstraint(Sketcher.Constraint("Coincident", 1, 2, 2, 1))
sketch11.addConstraint(Sketcher.Constraint("Coincident", 2, 2, 3, 1))
sketch11.addConstraint(Sketcher.Constraint("Coincident", 3, 2, 0, 1))
sketch11.addConstraint(Sketcher.Constraint("Coincident", 4, 2, 5, 1))
sketch11.addConstraint(Sketcher.Constraint("Coincident", 5, 2, 6, 1))
sketch11.addConstraint(Sketcher.Constraint("Coincident", 6, 2, 7, 1))
sketch11.addConstraint(Sketcher.Constraint("Coincident", 7, 2, 4, 1))
sketch11.addConstraint(Sketcher.Constraint("Vertical", 0))
sketch11.addConstraint(Sketcher.Constraint("Horizontal", 1))
sketch11.addConstraint(Sketcher.Constraint("Vertical", 2))
sketch11.addConstraint(Sketcher.Constraint("Horizontal", 3))
sketch11.addConstraint(Sketcher.Constraint("Horizontal", 4))
sketch11.addConstraint(Sketcher.Constraint("Vertical", 5))
sketch11.addConstraint(Sketcher.Constraint("Horizontal", 6))
sketch11.addConstraint(Sketcher.Constraint("Vertical", 7))
sketch11.addConstraint(Sketcher.Constraint("DistanceX", 0, 2, 4, 2, Q("1.2 mm")))
sketch11.addConstraint(Sketcher.Constraint("DistanceY", 4, 2, 0, 2, Q("1.2 mm")))
sketch11.addConstraint(Sketcher.Constraint("DistanceY", 3, 2, 5, 2, Q("1.2 mm")))
sketch11.addConstraint(Sketcher.Constraint("DistanceX", 6, 2, 2, 2, Q("1.2 mm")))
sketch11.addConstraint(Sketcher.Constraint("DistanceX", -1, 1, 1, 2, Q("38.068198 mm")))
sketch11.addConstraint(Sketcher.Constraint("DistanceX", 1, 1, 1, 2, Q("143.763404 mm")))
sketch11.addConstraint(Sketcher.Constraint("DistanceY", 0, 1, 0, 2, Q("56.022164 mm")))
sketch11.addConstraint(Sketcher.Constraint("DistanceY", -1, 1, 0, 2, Q("27.945816 mm")))
pad9 = doc.addObject("PartDesign::Pad", "Pad008")
body2.addObject(pad9)
pad9.Profile = sketch11
pad9.Length = 6

sketch12 = doc.addObject("Sketcher::SketchObject", "Sketch011")
body2.addObject(sketch12)
sketch12.AttachmentSupport = (doc.getObject("XZ_Plane001"), [""])
sketch12.MapMode = "FlatFace"
sketch12.AttachmentOffset = App.Placement(V(0, 0, -35), App.Rotation())
sketch12.addGeometry(Part.LineSegment(V(-109, -31, 0), V(-109, 31, 0)), False)
sketch12.addGeometry(Part.LineSegment(V(-109, 31, 0), V(40, 31, 0)), False)
sketch12.addGeometry(Part.LineSegment(V(40, 31, 0), V(40, -31, 0)), False)
sketch12.addGeometry(Part.LineSegment(V(40, -31, 0), V(-109, -31, 0)), False)
sketch12.addConstraint(Sketcher.Constraint("Coincident", 0, 2, 1, 1))
sketch12.addConstraint(Sketcher.Constraint("Coincident", 1, 2, 2, 1))
sketch12.addConstraint(Sketcher.Constraint("Coincident", 2, 2, 3, 1))
sketch12.addConstraint(Sketcher.Constraint("Coincident", 3, 2, 0, 1))
sketch12.addConstraint(Sketcher.Constraint("Vertical", 0))
sketch12.addConstraint(Sketcher.Constraint("Horizontal", 1))
sketch12.addConstraint(Sketcher.Constraint("Vertical", 2))
sketch12.addConstraint(Sketcher.Constraint("Horizontal", 3))
sketch12.addConstraint(Sketcher.Constraint("DistanceX", 1, 1, 1, 2, Q("148.82805 mm")))
sketch12.addConstraint(Sketcher.Constraint("DistanceY", 0, 1, 0, 2, Q("62.322164 mm")))
sketch12.addConstraint(Sketcher.Constraint("DistanceX", 0, 2, -1, 1, Q("108.845206 mm")))
sketch12.addConstraint(Sketcher.Constraint("DistanceY", -1, 1, 0, 2, Q("31.095816 mm")))
pad10 = doc.addObject("PartDesign::Pad", "Pad009")
body2.addObject(pad10)
pad10.Profile = sketch12
pad10.Length = 2
pad10.Reversed = True
doc.recompute()

chamfer = doc.addObject("PartDesign::Chamfer", "Chamfer")
body2.addObject(chamfer)
chamfer.Base = (pad10, edges_at(pad10, [
    (-33.814, 35, -26.876),
    (-104.495, 35, -0.065),
    (-33.814, 35, 26.746),
    (36.868, 35, -0.065),
]))
chamfer.Size = 2

doc.recompute()
